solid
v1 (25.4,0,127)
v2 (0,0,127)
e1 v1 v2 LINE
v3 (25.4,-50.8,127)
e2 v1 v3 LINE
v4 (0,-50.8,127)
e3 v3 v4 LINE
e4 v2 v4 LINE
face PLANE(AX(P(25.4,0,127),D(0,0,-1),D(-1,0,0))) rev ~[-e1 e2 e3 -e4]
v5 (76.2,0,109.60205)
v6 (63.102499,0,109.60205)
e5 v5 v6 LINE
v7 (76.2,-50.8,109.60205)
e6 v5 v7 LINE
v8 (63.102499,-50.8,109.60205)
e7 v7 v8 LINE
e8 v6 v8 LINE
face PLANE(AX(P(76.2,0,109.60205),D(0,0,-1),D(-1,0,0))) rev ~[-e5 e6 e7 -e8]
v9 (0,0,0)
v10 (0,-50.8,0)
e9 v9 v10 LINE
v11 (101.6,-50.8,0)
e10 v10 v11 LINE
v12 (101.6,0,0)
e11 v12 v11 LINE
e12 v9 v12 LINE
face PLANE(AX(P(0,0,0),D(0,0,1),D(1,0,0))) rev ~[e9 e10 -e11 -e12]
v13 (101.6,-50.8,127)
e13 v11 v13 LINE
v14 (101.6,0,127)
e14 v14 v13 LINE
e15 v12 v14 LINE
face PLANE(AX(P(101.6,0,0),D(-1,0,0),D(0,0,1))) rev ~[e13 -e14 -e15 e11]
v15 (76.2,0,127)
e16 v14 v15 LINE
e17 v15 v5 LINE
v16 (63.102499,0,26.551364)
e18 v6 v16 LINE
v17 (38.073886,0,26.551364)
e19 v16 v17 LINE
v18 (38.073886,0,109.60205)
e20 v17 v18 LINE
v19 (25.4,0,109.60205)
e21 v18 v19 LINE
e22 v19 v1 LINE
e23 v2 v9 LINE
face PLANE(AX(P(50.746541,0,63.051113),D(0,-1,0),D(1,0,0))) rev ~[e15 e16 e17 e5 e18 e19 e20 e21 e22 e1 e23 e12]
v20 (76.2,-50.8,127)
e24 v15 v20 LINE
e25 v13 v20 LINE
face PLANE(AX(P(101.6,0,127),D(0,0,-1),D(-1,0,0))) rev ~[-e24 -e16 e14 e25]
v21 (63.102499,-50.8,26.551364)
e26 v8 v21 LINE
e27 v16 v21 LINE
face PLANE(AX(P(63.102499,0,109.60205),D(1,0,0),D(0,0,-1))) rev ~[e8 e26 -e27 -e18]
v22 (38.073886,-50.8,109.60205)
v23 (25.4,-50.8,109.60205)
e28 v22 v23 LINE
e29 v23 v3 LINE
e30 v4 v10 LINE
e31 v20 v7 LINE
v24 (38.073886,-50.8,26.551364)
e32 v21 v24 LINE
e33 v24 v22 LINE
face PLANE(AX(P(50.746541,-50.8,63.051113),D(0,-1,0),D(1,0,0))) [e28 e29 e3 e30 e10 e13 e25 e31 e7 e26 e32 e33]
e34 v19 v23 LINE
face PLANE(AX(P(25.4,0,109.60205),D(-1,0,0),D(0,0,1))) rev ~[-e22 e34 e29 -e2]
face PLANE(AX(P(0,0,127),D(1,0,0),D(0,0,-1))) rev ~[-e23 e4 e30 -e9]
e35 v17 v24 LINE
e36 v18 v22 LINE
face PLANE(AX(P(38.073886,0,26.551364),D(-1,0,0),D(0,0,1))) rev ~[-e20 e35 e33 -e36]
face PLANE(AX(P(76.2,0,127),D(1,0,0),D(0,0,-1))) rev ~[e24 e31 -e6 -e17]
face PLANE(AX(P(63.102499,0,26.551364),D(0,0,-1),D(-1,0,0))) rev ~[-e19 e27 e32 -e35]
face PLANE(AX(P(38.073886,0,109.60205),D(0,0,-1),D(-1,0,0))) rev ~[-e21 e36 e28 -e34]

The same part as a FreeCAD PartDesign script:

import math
import FreeCAD as App
import Part
import Sketcher
Q = App.Units.Quantity

doc = App.newDocument("Part")
body = doc.addObject("PartDesign::Body", "Body")

# Sketch on XZ plane
sketch1 = body.newObject("Sketcher::SketchObject", "Sketch")
sketch1.AttachmentSupport = (doc.getObject("XZ_Plane"), [""])
sketch1.MapMode = "FlatFace"
sketch1.addGeometry([
    Part.LineSegment(App.Vector(0, 127, 0), App.Vector(0, 0, 0)),  # 0
    Part.LineSegment(App.Vector(0, 0, 0), App.Vector(102, 0, 0)),  # 1
    Part.LineSegment(App.Vector(102, 0, 0), App.Vector(102, 127, 0)),  # 2
    Part.LineSegment(App.Vector(102, 127, 0), App.Vector(76, 127, 0)),  # 3
    Part.LineSegment(App.Vector(76, 127, 0), App.Vector(76, 110, 0)),  # 4
    Part.LineSegment(App.Vector(76, 110, 0), App.Vector(63, 110, 0)),  # 5
    Part.LineSegment(App.Vector(63, 110, 0), App.Vector(63, 27, 0)),  # 6
    Part.LineSegment(App.Vector(63, 27, 0), App.Vector(38, 27, 0)),  # 7
    Part.LineSegment(App.Vector(38, 27, 0), App.Vector(38, 110, 0)),  # 8
    Part.LineSegment(App.Vector(38, 110, 0), App.Vector(25, 110, 0)),  # 9
    Part.LineSegment(App.Vector(25, 110, 0), App.Vector(25, 127, 0)),  # 10
    Part.LineSegment(App.Vector(25, 127, 0), App.Vector(0, 127, 0)),  # 11
], False)
sketch1.addConstraint([
    Sketcher.Constraint("Coincident", 0, 2, 1, 1),
    Sketcher.Constraint("Coincident", 1, 2, 2, 1),
    Sketcher.Constraint("Coincident", 2, 2, 3, 1),
    Sketcher.Constraint("Coincident", 3, 2, 4, 1),
    Sketcher.Constraint("Coincident", 4, 2, 5, 1),
    Sketcher.Constraint("Coincident", 5, 2, 6, 1),
    Sketcher.Constraint("Coincident", 6, 2, 7, 1),
    Sketcher.Constraint("Coincident", 7, 2, 8, 1),
    Sketcher.Constraint("Coincident", 8, 2, 9, 1),
    Sketcher.Constraint("Coincident", 9, 2, 10, 1),
    Sketcher.Constraint("Coincident", 10, 2, 11, 1),
    Sketcher.Constraint("Coincident", 11, 2, 0, 1),
    Sketcher.Constraint("Vertical", 0),
    Sketcher.Constraint("Horizontal", 1),
    Sketcher.Constraint("Vertical", 2),
    Sketcher.Constraint("Horizontal", 3),
    Sketcher.Constraint("Vertical", 4),
    Sketcher.Constraint("Horizontal", 5),
    Sketcher.Constraint("Vertical", 6),
    Sketcher.Constraint("Horizontal", 7),
    Sketcher.Constraint("Vertical", 8),
    Sketcher.Constraint("Horizontal", 9),
    Sketcher.Constraint("Vertical", 10),
    Sketcher.Constraint("Horizontal", 11),
    Sketcher.Constraint("Coincident", 0, 2, -1, 1),
    Sketcher.Constraint("Horizontal", 5, 2, 8, 2),
    Sketcher.Constraint("Horizontal", 3, 2, 10, 2),
    Sketcher.Constraint("Equal", 3, 11),
    Sketcher.Constraint("DistanceX", 1, 1, 1, 2, Q("4 in")),
    Sketcher.Constraint("DistanceX", 3, 2, 3, 1, Q("1 in")),
    Sketcher.Constraint("DistanceY", 0, 2, 0, 1, Q("5 in")),
    Sketcher.Constraint("DistanceX", 5, 2, 5, 1, 13.097501),
    Sketcher.Constraint("DistanceY", 4, 2, 4, 1, 17.39795),
    Sketcher.Constraint("DistanceX", 7, 2, 7, 1, 25.028612),
    Sketcher.Constraint("DistanceY", 6, 2, 6, 1, 83.050686),
])
pad1 = body.newObject("PartDesign::Pad", "Pad")
pad1.Profile = sketch1
pad1.Length = Q("2 in")

# Sketch on XY plane
sketch2 = body.newObject("Sketcher::SketchObject", "Sketch001")
sketch2.AttachmentSupport = (doc.getObject("XY_Plane"), [""])
sketch2.MapMode = "FlatFace"
sketch2.AttachmentOffset = App.Placement(App.Vector(0, 0, 26.551364), App.Rotation())
sketch2.addGeometry([
    Part.LineSegment(App.Vector(63, -39, 0), App.Vector(63, -9, 0)),
    Part.ArcOfCircle(Part.Circle(App.Vector(51, -24, 0), App.Vector(0, 0, 1), 20), math.radians(50), math.radians(130)),
    Part.LineSegment(App.Vector(38, -9, 0), App.Vector(38, -39, 0)),
    Part.ArcOfCircle(Part.Circle(App.Vector(51, -24, 0), App.Vector(0, 0, 1), 20), math.radians(-130), math.radians(-50)),
], False)
sketch2.addConstraint([
    Sketcher.Constraint("Coincident", 0, 2, 1, 1),
    Sketcher.Constraint("Coincident", 1, 2, 2, 1),
    Sketcher.Constraint("Coincident", 2, 2, 3, 1),
    Sketcher.Constraint("Coincident", 3, 2, 0, 1),
    Sketcher.Constraint("Vertical", 0),
    Sketcher.Constraint("Vertical", 2),
    Sketcher.Constraint("Coincident", 3, 3, 1, 3),
    Sketcher.Constraint("Equal", 1, 3),
    Sketcher.Constraint("Horizontal", 0, 2, 1, 2),
    Sketcher.Constraint("Radius", 1, 19.638961),
    Sketcher.Constraint("DistanceY", 0, 1, 0, 2, 30.27084),
    Sketcher.Constraint("DistanceX", -1, 1, 0, 2, 63.102499),
    Sketcher.Constraint("DistanceY", 1, 3, -1, 1, 24.202313),
])
pocket1 = body.newObject("PartDesign::Pocket", "Pocket")
pocket1.Profile = sketch2
pocket1.Length = Q("20 in")
pocket1.Reversed = True

doc.recompute()
